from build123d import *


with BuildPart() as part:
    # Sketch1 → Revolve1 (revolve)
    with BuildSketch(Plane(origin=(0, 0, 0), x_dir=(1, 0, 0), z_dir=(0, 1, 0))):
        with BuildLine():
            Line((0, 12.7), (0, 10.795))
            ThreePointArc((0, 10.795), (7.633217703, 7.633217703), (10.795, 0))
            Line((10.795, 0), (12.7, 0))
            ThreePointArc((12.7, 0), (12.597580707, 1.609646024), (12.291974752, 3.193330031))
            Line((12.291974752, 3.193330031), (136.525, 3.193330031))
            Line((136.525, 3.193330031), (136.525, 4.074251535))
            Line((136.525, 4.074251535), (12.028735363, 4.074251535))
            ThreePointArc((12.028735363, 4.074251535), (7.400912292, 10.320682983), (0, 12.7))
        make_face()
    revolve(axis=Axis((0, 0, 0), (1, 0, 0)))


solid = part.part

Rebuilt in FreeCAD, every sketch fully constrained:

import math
import FreeCAD as App
import Part
import Sketcher

V = App.Vector
Q = App.Units.Quantity

doc = App.newDocument("Part")
body = doc.addObject("PartDesign::Body", "Body")

# Sketch on XZ plane
sketch1 = doc.addObject("Sketcher::SketchObject", "Sketch")
body.addObject(sketch1)
sketch1.AttachmentSupport = (doc.XZ_Plane, [""])
sketch1.MapMode = "FlatFace"
sketch1.addGeometry([
    Part.LineSegment(V(0, -12.7, 0), V(0, -10.795, 0)),  # 0
    Part.ArcOfCircle(Part.Circle(V(0, 0, 0), V(0, 0, 1), 10.795), math.radians(-90), math.radians(0)),  # 1
    Part.LineSegment(V(10.795, 0, 0), V(12.7, 0, 0)),  # 2
    Part.ArcOfCircle(Part.Circle(V(0, 0, 0), V(0, 0, 1), 12.7), math.radians(-14.562936), math.radians(0)),  # 3
    Part.LineSegment(V(12.291975, -3.19333, 0), V(136.525, -3.19333, 0)),  # 4
    Part.LineSegment(V(136.525, -3.19333, 0), V(136.525, -4.074252, 0)),  # 5
    Part.LineSegment(V(136.525, -4.074252, 0), V(12.028735, -4.074252, 0)),  # 6
    Part.ArcOfCircle(Part.Circle(V(0, 0, 0), V(0, 0, 1), 12.7), math.radians(-90), math.radians(-18.711748)),  # 7
], False)
sketch1.addConstraint([
    Sketcher.Constraint("Coincident", 0, 2, 1, 1),
    Sketcher.Constraint("Coincident", 1, 2, 2, 1),
    Sketcher.Constraint("Coincident", 2, 2, 3, 2),
    Sketcher.Constraint("Coincident", 3, 1, 4, 1),
    Sketcher.Constraint("Coincident", 4, 2, 5, 1),
    Sketcher.Constraint("Coincident", 5, 2, 6, 1),
    Sketcher.Constraint("Coincident", 6, 2, 7, 2),
    Sketcher.Constraint("Coincident", 7, 1, 0, 1),
    Sketcher.Constraint("Vertical", 0),
    Sketcher.Constraint("Horizontal", 2),
    Sketcher.Constraint("Horizontal", 4),
    Sketcher.Constraint("Vertical", 5),
    Sketcher.Constraint("Horizontal", 6),
    Sketcher.Constraint("Coincident", 1, 3, -1, 1),
    Sketcher.Constraint("Coincident", 3, 3, -1, 1),
    Sketcher.Constraint("Coincident", 7, 3, -1, 1),
    Sketcher.Constraint("Equal", 3, 7),
    Sketcher.Constraint("PointOnObject", 0, 2, -2),
    Sketcher.Constraint("PointOnObject", 1, 2, -1),
    Sketcher.Constraint("Radius", 3, Q("0.5 in")),
    Sketcher.Constraint("Radius", 1, Q("0.425 in")),
    Sketcher.Constraint("DistanceX", 1, 2, 4, 2, Q("4.95 in")),
    Sketcher.Constraint("DistanceY", 5, 2, 5, 1, 0.880922),
    Sketcher.Constraint("DistanceX", 4, 1, 4, 2, 124.233025),
])
revolution = doc.addObject("PartDesign::Revolution", "Revolution")
body.addObject(revolution)
revolution.Profile = sketch1
revolution.ReferenceAxis = (sketch1, ["H_Axis"])
revolution.Angle = 360

doc.recompute()
